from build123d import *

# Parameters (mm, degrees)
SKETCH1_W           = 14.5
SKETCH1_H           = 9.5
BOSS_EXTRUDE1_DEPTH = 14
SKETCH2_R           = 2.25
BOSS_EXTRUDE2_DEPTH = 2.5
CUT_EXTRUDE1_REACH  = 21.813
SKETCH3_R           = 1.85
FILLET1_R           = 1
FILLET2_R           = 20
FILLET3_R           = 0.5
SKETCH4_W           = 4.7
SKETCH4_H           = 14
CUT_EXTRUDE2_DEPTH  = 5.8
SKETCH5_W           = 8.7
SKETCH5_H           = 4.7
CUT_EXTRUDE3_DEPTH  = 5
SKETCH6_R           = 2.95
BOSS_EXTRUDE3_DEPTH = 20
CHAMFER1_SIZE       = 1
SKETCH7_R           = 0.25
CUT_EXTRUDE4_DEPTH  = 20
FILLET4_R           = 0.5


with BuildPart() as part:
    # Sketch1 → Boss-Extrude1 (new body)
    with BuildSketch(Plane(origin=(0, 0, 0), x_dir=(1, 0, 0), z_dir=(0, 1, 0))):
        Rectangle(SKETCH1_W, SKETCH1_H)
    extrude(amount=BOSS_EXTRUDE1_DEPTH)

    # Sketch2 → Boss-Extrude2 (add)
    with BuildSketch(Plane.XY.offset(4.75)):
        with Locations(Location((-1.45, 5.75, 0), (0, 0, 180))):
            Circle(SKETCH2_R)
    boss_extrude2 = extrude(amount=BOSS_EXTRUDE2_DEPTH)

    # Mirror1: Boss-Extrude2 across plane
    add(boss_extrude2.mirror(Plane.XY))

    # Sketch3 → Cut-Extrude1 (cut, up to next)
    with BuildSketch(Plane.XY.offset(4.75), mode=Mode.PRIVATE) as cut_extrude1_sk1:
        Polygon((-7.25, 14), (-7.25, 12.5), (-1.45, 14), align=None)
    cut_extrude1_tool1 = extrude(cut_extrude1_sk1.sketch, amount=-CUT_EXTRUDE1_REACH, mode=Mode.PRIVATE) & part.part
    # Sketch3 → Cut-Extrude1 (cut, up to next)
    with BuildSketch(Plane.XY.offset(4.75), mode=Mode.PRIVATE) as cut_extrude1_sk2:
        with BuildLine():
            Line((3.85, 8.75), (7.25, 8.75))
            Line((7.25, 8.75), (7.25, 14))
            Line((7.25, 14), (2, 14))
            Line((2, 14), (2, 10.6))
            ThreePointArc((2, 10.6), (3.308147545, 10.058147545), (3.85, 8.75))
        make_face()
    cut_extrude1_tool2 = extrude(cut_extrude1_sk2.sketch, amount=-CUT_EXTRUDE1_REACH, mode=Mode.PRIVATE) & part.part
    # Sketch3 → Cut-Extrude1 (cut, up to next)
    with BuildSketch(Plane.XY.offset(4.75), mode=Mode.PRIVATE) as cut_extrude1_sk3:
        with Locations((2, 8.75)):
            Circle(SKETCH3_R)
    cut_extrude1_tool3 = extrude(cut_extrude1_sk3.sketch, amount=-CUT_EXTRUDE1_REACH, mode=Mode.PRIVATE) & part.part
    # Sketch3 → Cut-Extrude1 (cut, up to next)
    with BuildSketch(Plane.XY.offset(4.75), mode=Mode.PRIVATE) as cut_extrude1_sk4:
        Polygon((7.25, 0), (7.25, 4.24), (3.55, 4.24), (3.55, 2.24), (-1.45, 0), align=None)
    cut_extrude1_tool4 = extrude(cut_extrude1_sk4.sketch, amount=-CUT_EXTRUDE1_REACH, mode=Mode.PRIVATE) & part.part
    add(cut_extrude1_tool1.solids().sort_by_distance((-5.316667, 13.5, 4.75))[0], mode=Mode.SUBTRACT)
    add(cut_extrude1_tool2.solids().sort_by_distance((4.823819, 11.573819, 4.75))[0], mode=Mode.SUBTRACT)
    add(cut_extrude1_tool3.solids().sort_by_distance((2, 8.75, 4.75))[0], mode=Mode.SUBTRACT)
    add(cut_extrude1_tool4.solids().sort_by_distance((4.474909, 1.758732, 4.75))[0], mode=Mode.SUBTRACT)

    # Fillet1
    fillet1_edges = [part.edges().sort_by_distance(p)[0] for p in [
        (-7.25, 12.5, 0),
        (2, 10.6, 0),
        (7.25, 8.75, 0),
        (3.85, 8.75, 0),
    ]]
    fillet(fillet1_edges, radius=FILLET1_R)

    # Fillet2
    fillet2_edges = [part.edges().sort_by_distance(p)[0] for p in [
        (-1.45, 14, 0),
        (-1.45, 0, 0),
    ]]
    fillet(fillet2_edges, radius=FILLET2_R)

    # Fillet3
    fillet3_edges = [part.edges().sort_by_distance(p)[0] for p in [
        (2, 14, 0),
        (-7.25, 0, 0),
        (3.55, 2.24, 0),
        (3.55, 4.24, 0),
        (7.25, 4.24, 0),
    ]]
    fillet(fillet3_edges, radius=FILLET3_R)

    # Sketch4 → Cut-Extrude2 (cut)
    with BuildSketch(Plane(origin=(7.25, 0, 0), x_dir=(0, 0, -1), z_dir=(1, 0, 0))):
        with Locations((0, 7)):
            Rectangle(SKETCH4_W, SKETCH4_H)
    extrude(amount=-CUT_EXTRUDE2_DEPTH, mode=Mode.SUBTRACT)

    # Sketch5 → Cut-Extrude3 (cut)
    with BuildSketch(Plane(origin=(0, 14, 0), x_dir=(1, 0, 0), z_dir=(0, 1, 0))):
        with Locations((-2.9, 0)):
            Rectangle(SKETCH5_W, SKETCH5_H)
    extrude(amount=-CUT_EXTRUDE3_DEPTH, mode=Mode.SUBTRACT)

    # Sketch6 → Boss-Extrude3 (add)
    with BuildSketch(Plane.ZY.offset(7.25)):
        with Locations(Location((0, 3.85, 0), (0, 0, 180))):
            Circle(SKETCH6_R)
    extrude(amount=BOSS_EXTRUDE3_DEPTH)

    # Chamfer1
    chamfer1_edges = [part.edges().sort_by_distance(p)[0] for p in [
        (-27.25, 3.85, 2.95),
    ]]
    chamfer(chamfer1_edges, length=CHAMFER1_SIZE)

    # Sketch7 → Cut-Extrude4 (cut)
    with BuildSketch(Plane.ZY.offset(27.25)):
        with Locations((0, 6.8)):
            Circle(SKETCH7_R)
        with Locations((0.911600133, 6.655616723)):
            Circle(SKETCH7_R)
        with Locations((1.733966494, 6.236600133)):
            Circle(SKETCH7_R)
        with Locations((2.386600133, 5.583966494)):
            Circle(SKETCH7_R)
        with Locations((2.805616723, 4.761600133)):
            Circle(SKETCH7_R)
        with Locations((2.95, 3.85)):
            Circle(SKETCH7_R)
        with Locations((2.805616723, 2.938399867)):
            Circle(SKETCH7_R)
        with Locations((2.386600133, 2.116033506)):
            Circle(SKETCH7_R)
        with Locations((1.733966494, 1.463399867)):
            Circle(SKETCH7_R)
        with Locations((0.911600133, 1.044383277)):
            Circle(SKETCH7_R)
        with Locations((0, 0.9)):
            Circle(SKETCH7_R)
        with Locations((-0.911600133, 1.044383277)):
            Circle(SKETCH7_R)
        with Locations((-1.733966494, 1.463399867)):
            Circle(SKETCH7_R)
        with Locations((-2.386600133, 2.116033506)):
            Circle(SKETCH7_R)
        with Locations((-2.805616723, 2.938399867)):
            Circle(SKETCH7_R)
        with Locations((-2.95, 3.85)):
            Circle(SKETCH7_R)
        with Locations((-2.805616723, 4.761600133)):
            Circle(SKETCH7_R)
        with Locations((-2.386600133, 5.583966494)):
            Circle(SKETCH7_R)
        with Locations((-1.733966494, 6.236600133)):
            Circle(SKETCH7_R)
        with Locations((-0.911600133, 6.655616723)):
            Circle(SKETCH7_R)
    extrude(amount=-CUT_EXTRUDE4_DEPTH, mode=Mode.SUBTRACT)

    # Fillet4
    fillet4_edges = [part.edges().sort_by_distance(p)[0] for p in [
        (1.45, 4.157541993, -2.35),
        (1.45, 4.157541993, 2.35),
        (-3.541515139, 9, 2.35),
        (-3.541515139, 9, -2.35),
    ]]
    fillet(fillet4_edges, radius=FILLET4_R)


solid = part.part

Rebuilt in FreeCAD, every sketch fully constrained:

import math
import FreeCAD as App
import Part
import Sketcher
Q = App.Units.Quantity


def edges_at(feature, points):
    """Names of the edges that pass closest to the given points."""
    edges = feature.Shape.Edges
    near = lambda p: min(range(len(edges)), key=lambda i: edges[i].distToShape(Part.Vertex(*p))[0])
    return sorted({f"Edge{near(p) + 1}" for p in points})


def add_polygon(sketch, points):
    """Adds a closed chain of lines whose ends are joined by coincident constraints."""
    first, n = sketch.GeometryCount, len(points)
    for a, b in zip(points, points[1:] + points[:1]):
        sketch.addGeometry(Part.LineSegment(App.Vector(*a, 0), App.Vector(*b, 0)), False)
    for i in range(n):
        sketch.addConstraint(Sketcher.Constraint("Coincident", first + i, 2, first + (i + 1) % n, 1))

doc = App.newDocument("Part")
body = doc.addObject("PartDesign::Body", "Body")

# Sketch on XZ plane
sketch1 = body.newObject("Sketcher::SketchObject", "Sketch")
sketch1.AttachmentSupport = (doc.getObject("XZ_Plane"), [""])
sketch1.MapMode = "FlatFace"
add_polygon(sketch1, [(-7.25, -4.75), (-7.25, 4.75), (7.25, 4.75), (7.25, -4.75)])  # lines 0-3
sketch1.addConstraint([
    Sketcher.Constraint("Vertical", 0),
    Sketcher.Constraint("Horizontal", 1),
    Sketcher.Constraint("Vertical", 2),
    Sketcher.Constraint("Horizontal", 3),
    Sketcher.Constraint("Symmetric", 0, 2, 2, 2, -1, 1),
    Sketcher.Constraint("DistanceX", 1, 1, 1, 2, Q("14.5 mm")),
    Sketcher.Constraint("DistanceY", 0, 1, 0, 2, Q("9.5 mm")),
])
pad1 = body.newObject("PartDesign::Pad", "Pad")
pad1.Profile = sketch1
pad1.Length = 14
pad1.Reversed = True

# Sketch on XY plane
sketch2 = body.newObject("Sketcher::SketchObject", "Sketch001")
sketch2.AttachmentSupport = (doc.getObject("XY_Plane"), [""])
sketch2.MapMode = "FlatFace"
sketch2.AttachmentOffset = App.Placement(App.Vector(0, 0, 4.75), App.Rotation())
sketch2.addGeometry(Part.Circle(App.Vector(-1.45, 5.75, 0), App.Vector(0, 0, 1), 2.25), False)
sketch2.addConstraint([
    Sketcher.Constraint("Diameter", 0, Q("4.5 mm")),
    Sketcher.Constraint("DistanceX", 0, 3, -1, 1, Q("1.45 mm")),
    Sketcher.Constraint("DistanceY", -1, 1, 0, 3, Q("5.75 mm")),
])
pad2 = body.newObject("PartDesign::Pad", "Pad001")
pad2.Profile = sketch2
pad2.Length = 2.5
doc.recompute()

mirrored = body.newObject("PartDesign::Mirrored", "Mirrored")
mirrored.Originals = [pad2]
mirrored.MirrorPlane = (doc.getObject("XY_Plane"), [""])
body.Tip = mirrored

# Sketch on XY plane
sketch3 = body.newObject("Sketcher::SketchObject", "Sketch002")
sketch3.AttachmentSupport = (doc.getObject("XY_Plane"), [""])
sketch3.MapMode = "FlatFace"
sketch3.AttachmentOffset = App.Placement(App.Vector(0, 0, 4.75), App.Rotation())
add_polygon(sketch3, [(-7.25, 14), (-7.25, 12.5), (-1.45, 14)])  # lines 0-2
sketch3.addConstraint([
    Sketcher.Constraint("Vertical", 0),
    Sketcher.Constraint("Horizontal", 2),
    Sketcher.Constraint("DistanceX", 2, 2, 2, 1, Q("5.8 mm")),
    Sketcher.Constraint("DistanceY", 0, 2, 0, 1, Q("1.5 mm")),
    Sketcher.Constraint("DistanceY", -1, 1, 1, 2, Q("14 mm")),
    Sketcher.Constraint("DistanceX", 0, 2, -1, 1, Q("7.25 mm")),
])
pocket1 = body.newObject("PartDesign::Pocket", "Pocket")
pocket1.Profile = sketch3
pocket1.Type = "UpToFirst"

# Sketch on XY plane
sketch4 = body.newObject("Sketcher::SketchObject", "Sketch003")
sketch4.AttachmentSupport = (doc.getObject("XY_Plane"), [""])
sketch4.MapMode = "FlatFace"
sketch4.AttachmentOffset = App.Placement(App.Vector(0, 0, 4.75), App.Rotation())
sketch4.addGeometry([
    Part.LineSegment(App.Vector(3.85, 8.75, 0), App.Vector(7.25, 8.75, 0)),  # 0
    Part.LineSegment(App.Vector(7.25, 8.75, 0), App.Vector(7.25, 14, 0)),  # 1
    Part.LineSegment(App.Vector(7.25, 14, 0), App.Vector(2, 14, 0)),  # 2
    Part.LineSegment(App.Vector(2, 14, 0), App.Vector(2, 10.6, 0)),  # 3
    Part.ArcOfCircle(Part.Circle(App.Vector(2, 8.75, 0), App.Vector(0, 0, 1), 1.85), math.radians(0), math.radians(90)),  # 4
], False)
sketch4.addConstraint([
    Sketcher.Constraint("Coincident", 0, 2, 1, 1),
    Sketcher.Constraint("Coincident", 1, 2, 2, 1),
    Sketcher.Constraint("Coincident", 2, 2, 3, 1),
    Sketcher.Constraint("Coincident", 3, 2, 4, 2),
    Sketcher.Constraint("Coincident", 4, 1, 0, 1),
    Sketcher.Constraint("Horizontal", 0),
    Sketcher.Constraint("Vertical", 1),
    Sketcher.Constraint("Horizontal", 2),
    Sketcher.Constraint("Vertical", 3),
    Sketcher.Constraint("Horizontal", 4, 3, 0, 2),
    Sketcher.Constraint("Vertical", 4, 3, 2, 2),
    Sketcher.Constraint("Equal", 2, 1),
    Sketcher.Constraint("Radius", 4, Q("1.85 mm")),
    Sketcher.Constraint("DistanceX", 0, 1, 0, 2, Q("3.4 mm")),
    Sketcher.Constraint("DistanceX", -1, 1, 4, 3, Q("2 mm")),
    Sketcher.Constraint("DistanceY", -1, 1, 1, 2, Q("14 mm")),
])
pocket2 = body.newObject("PartDesign::Pocket", "Pocket001")
pocket2.Profile = sketch4
pocket2.Type = "UpToFirst"

# Sketch on XY plane
sketch5 = body.newObject("Sketcher::SketchObject", "Sketch004")
sketch5.AttachmentSupport = (doc.getObject("XY_Plane"), [""])
sketch5.MapMode = "FlatFace"
sketch5.AttachmentOffset = App.Placement(App.Vector(0, 0, 4.75), App.Rotation())
sketch5.addGeometry(Part.Circle(App.Vector(2, 8.75, 0), App.Vector(0, 0, 1), 1.85), False)
sketch5.addConstraint([
    Sketcher.Constraint("Diameter", 0, Q("3.7 mm")),
    Sketcher.Constraint("DistanceX", -1, 1, 0, 3, Q("2 mm")),
    Sketcher.Constraint("DistanceY", -1, 1, 0, 3, Q("8.75 mm")),
])
pocket3 = body.newObject("PartDesign::Pocket", "Pocket002")
pocket3.Profile = sketch5
pocket3.Type = "UpToFirst"

# Sketch on XY plane
sketch6 = body.newObject("Sketcher::SketchObject", "Sketch005")
sketch6.AttachmentSupport = (doc.getObject("XY_Plane"), [""])
sketch6.MapMode = "FlatFace"
sketch6.AttachmentOffset = App.Placement(App.Vector(0, 0, 4.75), App.Rotation())
add_polygon(sketch6, [(7.25, 0), (7.25, 4.24), (3.55, 4.24), (3.55, 2.24), (-1.45, 0)])  # lines 0-4
sketch6.addConstraint([
    Sketcher.Constraint("Vertical", 0),
    Sketcher.Constraint("Horizontal", 1),
    Sketcher.Constraint("Vertical", 2),
    Sketcher.Constraint("Horizontal", 4),
    Sketcher.Constraint("PointOnObject", 3, 2, -1),
    Sketcher.Constraint("DistanceY", 2, 2, 2, 1, Q("2 mm")),
    Sketcher.Constraint("DistanceX", 1, 2, 1, 1, Q("3.7 mm")),
    Sketcher.Constraint("DistanceX", 4, 1, 4, 2, Q("8.7 mm")),
    Sketcher.Constraint("DistanceY", 0, 1, 0, 2, Q("4.24 mm")),
    Sketcher.Constraint("DistanceX", -1, 1, 0, 2, Q("7.25 mm")),
])
pocket4 = body.newObject("PartDesign::Pocket", "Pocket003")
pocket4.Profile = sketch6
pocket4.Type = "UpToFirst"
doc.recompute()

fillet = body.newObject("PartDesign::Fillet", "Fillet")
fillet.Base = (pocket4, edges_at(pocket4, [
    (-7.25, 12.5, 0),
    (2, 10.6, 0),
    (7.25, 8.75, 0),
    (3.85, 8.75, 0),
]))
fillet.Radius = 1
doc.recompute()

fillet2 = body.newObject("PartDesign::Fillet", "Fillet001")
fillet2.Base = (fillet, edges_at(fillet, [(-1.45, 14, 0), (-1.45, 0, 0)]))
fillet2.Radius = 20
doc.recompute()

fillet3 = body.newObject("PartDesign::Fillet", "Fillet002")
fillet3.Base = (fillet2, edges_at(fillet2, [
    (2, 14, 0),
    (-7.25, 0, 0),
    (3.55, 2.24, 0),
    (3.55, 4.24, 0),
    (7.25, 4.24, 0),
]))
fillet3.Radius = 0.5

# Sketch on YZ plane
sketch7 = body.newObject("Sketcher::SketchObject", "Sketch006")
sketch7.AttachmentSupport = (doc.getObject("YZ_Plane"), [""])
sketch7.MapMode = "FlatFace"
sketch7.AttachmentOffset = App.Placement(App.Vector(0, 0, 7.25), App.Rotation())
add_polygon(sketch7, [(14, 2.35), (0, 2.35), (0, -2.35), (14, -2.35)])  # lines 0-3
sketch7.addConstraint([
    Sketcher.Constraint("Horizontal", 0),
    Sketcher.Constraint("Vertical", 1),
    Sketcher.Constraint("Horizontal", 2),
    Sketcher.Constraint("Vertical", 3),
    Sketcher.Constraint("Symmetric", 0, 2, 1, 2, -1, 1),
    Sketcher.Constraint("DistanceX", 0, 2, 0, 1, Q("14 mm")),
    Sketcher.Constraint("DistanceY", 1, 2, 1, 1, Q("4.7 mm")),
])
pocket5 = body.newObject("PartDesign::Pocket", "Pocket004")
pocket5.Profile = sketch7
pocket5.Length = 5.8

# Sketch on XZ plane
sketch8 = body.newObject("Sketcher::SketchObject", "Sketch007")
sketch8.AttachmentSupport = (doc.getObject("XZ_Plane"), [""])
sketch8.MapMode = "FlatFace"
sketch8.AttachmentOffset = App.Placement(App.Vector(0, 0, -14), App.Rotation())
add_polygon(sketch8, [(-7.25, -2.35), (-7.25, 2.35), (1.45, 2.35), (1.45, -2.35)])  # lines 0-3
sketch8.addConstraint([
    Sketcher.Constraint("Vertical", 0),
    Sketcher.Constraint("Horizontal", 1),
    Sketcher.Constraint("Vertical", 2),
    Sketcher.Constraint("Horizontal", 3),
    Sketcher.Constraint("DistanceX", 1, 1, 1, 2, Q("8.7 mm")),
    Sketcher.Constraint("DistanceY", 0, 1, 0, 2, Q("4.7 mm")),
    Sketcher.Constraint("DistanceX", 0, 2, -1, 1, Q("7.25 mm")),
    Sketcher.Constraint("DistanceY", -1, 1, 0, 2, Q("2.35 mm")),
])
pocket6 = body.newObject("PartDesign::Pocket", "Pocket005")
pocket6.Profile = sketch8
pocket6.Length = 5
pocket6.Reversed = True

# Sketch on YZ plane
sketch9 = body.newObject("Sketcher::SketchObject", "Sketch008")
sketch9.AttachmentSupport = (doc.getObject("YZ_Plane"), [""])
sketch9.MapMode = "FlatFace"
sketch9.AttachmentOffset = App.Placement(App.Vector(0, 0, -7.25), App.Rotation())
sketch9.addGeometry(Part.Circle(App.Vector(3.85, 0, 0), App.Vector(0, 0, 1), 2.95), False)
sketch9.addConstraint([
    Sketcher.Constraint("PointOnObject", 0, 3, -1),
    Sketcher.Constraint("Diameter", 0, Q("5.9 mm")),
    Sketcher.Constraint("DistanceX", -1, 1, 0, 3, Q("3.85 mm")),
])
pad3 = body.newObject("PartDesign::Pad", "Pad002")
pad3.Profile = sketch9
pad3.Length = 20
pad3.Reversed = True
doc.recompute()

chamfer = body.newObject("PartDesign::Chamfer", "Chamfer")
chamfer.Base = (pad3, edges_at(pad3, [(-27.25, 3.85, 2.95)]))
chamfer.Size = 1

# Sketch on YZ plane
sketch10 = body.newObject("Sketcher::SketchObject", "Sketch009")
sketch10.AttachmentSupport = (doc.getObject("YZ_Plane"), [""])
sketch10.MapMode = "FlatFace"
sketch10.AttachmentOffset = App.Placement(App.Vector(0, 0, -27.25), App.Rotation())
sketch10.addGeometry([
    Part.Circle(App.Vector(6.8, 0, 0), App.Vector(0, 0, 1), 0.25),  # 0
    Part.Circle(App.Vector(6.655617, 0.9116, 0), App.Vector(0, 0, 1), 0.25),  # 1
    Part.Circle(App.Vector(6.2366, 1.733966, 0), App.Vector(0, 0, 1), 0.25),  # 2
    Part.Circle(App.Vector(5.583966, 2.3866, 0), App.Vector(0, 0, 1), 0.25),  # 3
    Part.Circle(App.Vector(4.7616, 2.805617, 0), App.Vector(0, 0, 1), 0.25),  # 4
    Part.Circle(App.Vector(3.85, 2.95, 0), App.Vector(0, 0, 1), 0.25),  # 5
    Part.Circle(App.Vector(2.9384, 2.805617, 0), App.Vector(0, 0, 1), 0.25),  # 6
    Part.Circle(App.Vector(2.116034, 2.3866, 0), App.Vector(0, 0, 1), 0.25),  # 7
    Part.Circle(App.Vector(1.4634, 1.733966, 0), App.Vector(0, 0, 1), 0.25),  # 8
    Part.Circle(App.Vector(1.044383, 0.9116, 0), App.Vector(0, 0, 1), 0.25),  # 9
    Part.Circle(App.Vector(0.9, 0, 0), App.Vector(0, 0, 1), 0.25),  # 10
    Part.Circle(App.Vector(1.044383, -0.9116, 0), App.Vector(0, 0, 1), 0.25),  # 11
    Part.Circle(App.Vector(1.4634, -1.733966, 0), App.Vector(0, 0, 1), 0.25),  # 12
    Part.Circle(App.Vector(2.116034, -2.3866, 0), App.Vector(0, 0, 1), 0.25),  # 13
    Part.Circle(App.Vector(2.9384, -2.805617, 0), App.Vector(0, 0, 1), 0.25),  # 14
    Part.Circle(App.Vector(3.85, -2.95, 0), App.Vector(0, 0, 1), 0.25),  # 15
    Part.Circle(App.Vector(4.7616, -2.805617, 0), App.Vector(0, 0, 1), 0.25),  # 16
    Part.Circle(App.Vector(5.583966, -2.3866, 0), App.Vector(0, 0, 1), 0.25),  # 17
    Part.Circle(App.Vector(6.2366, -1.733966, 0), App.Vector(0, 0, 1), 0.25),  # 18
    Part.Circle(App.Vector(6.655617, -0.9116, 0), App.Vector(0, 0, 1), 0.25),  # 19
], False)
sketch10.addConstraint([
    Sketcher.Constraint("Equal", 0, 1),
    Sketcher.Constraint("Equal", 1, 2),
    Sketcher.Constraint("Equal", 2, 3),
    Sketcher.Constraint("Equal", 3, 4),
    Sketcher.Constraint("Equal", 4, 5),
    Sketcher.Constraint("Equal", 5, 6),
    Sketcher.Constraint("Equal", 6, 7),
    Sketcher.Constraint("Equal", 7, 8),
    Sketcher.Constraint("Equal", 8, 9),
    Sketcher.Constraint("Equal", 9, 10),
    Sketcher.Constraint("Equal", 10, 11),
    Sketcher.Constraint("Equal", 11, 12),
    Sketcher.Constraint("Equal", 12, 13),
    Sketcher.Constraint("Equal", 13, 14),
    Sketcher.Constraint("Equal", 14, 15),
    Sketcher.Constraint("Equal", 15, 16),
    Sketcher.Constraint("Equal", 16, 17),
    Sketcher.Constraint("Equal", 17, 18),
    Sketcher.Constraint("Equal", 18, 19),
    Sketcher.Constraint("Symmetric", 9, 3, 11, 3, -1),
    Sketcher.Constraint("Symmetric", 8, 3, 12, 3, -1),
    Sketcher.Constraint("Symmetric", 7, 3, 13, 3, -1),
    Sketcher.Constraint("Symmetric", 6, 3, 14, 3, -1),
    Sketcher.Constraint("Symmetric", 5, 3, 15, 3, -1),
    Sketcher.Constraint("Symmetric", 4, 3, 16, 3, -1),
    Sketcher.Constraint("Symmetric", 3, 3, 17, 3, -1),
    Sketcher.Constraint("Symmetric", 2, 3, 18, 3, -1),
    Sketcher.Constraint("Symmetric", 1, 3, 19, 3, -1),
    Sketcher.Constraint("PointOnObject", 0, 3, -1),
    Sketcher.Constraint("PointOnObject", 10, 3, -1),
    Sketcher.Constraint("Horizontal", 4, 3, 6, 3),
    Sketcher.Constraint("Horizontal", 3, 3, 7, 3),
    Sketcher.Constraint("Horizontal", 2, 3, 8, 3),
    Sketcher.Constraint("Horizontal", 1, 3, 9, 3),
    Sketcher.Constraint("Diameter", 0, Q("0.5 mm")),
    Sketcher.Constraint("DistanceX", -1, 1, 0, 3, Q("6.8 mm")),
    Sketcher.Constraint("DistanceX", -1, 1, 10, 3, Q("0.9 mm")),
    Sketcher.Constraint("DistanceX", -1, 1, 5, 3, Q("3.85 mm")),
    Sketcher.Constraint("DistanceY", -1, 1, 5, 3, Q("2.95 mm")),
    Sketcher.Constraint("DistanceY", 1, 3, 3, 3, Q("1.475 mm")),
    Sketcher.Constraint("DistanceX", 4, 3, 2, 3, Q("1.475 mm")),
    Sketcher.Constraint("DistanceX", 8, 3, 6, 3, Q("1.475 mm")),
    Sketcher.Constraint("DistanceY", -1, 1, 1, 3, Q("0.9116 mm")),
    Sketcher.Constraint("DistanceX", -1, 1, 2, 3, Q("6.2366 mm")),
    Sketcher.Constraint("DistanceX", -1, 1, 6, 3, Q("2.9384 mm")),
    Sketcher.Constraint("DistanceX", 3, 3, 1, 3, Q("1.07165 mm")),
    Sketcher.Constraint("DistanceY", 2, 3, 4, 3, Q("1.07165 mm")),
    Sketcher.Constraint("DistanceX", 9, 3, 7, 3, Q("1.07165 mm")),
    Sketcher.Constraint("DistanceX", -1, 1, 1, 3, Q("6.655617 mm")),
    Sketcher.Constraint("DistanceY", -1, 1, 2, 3, Q("1.733966 mm")),
    Sketcher.Constraint("DistanceX", -1, 1, 7, 3, Q("2.116034 mm")),
])
pocket7 = body.newObject("PartDesign::Pocket", "Pocket006")
pocket7.Profile = sketch10
pocket7.Length = 20
pocket7.Reversed = True
doc.recompute()

fillet4 = body.newObject("PartDesign::Fillet", "Fillet003")
fillet4.Base = (pocket7, edges_at(pocket7, [
    (1.45, 4.158, -2.35),
    (1.45, 4.158, 2.35),
    (-3.542, 9, 2.35),
    (-3.542, 9, -2.35),
]))
fillet4.Radius = 0.5

doc.recompute()
